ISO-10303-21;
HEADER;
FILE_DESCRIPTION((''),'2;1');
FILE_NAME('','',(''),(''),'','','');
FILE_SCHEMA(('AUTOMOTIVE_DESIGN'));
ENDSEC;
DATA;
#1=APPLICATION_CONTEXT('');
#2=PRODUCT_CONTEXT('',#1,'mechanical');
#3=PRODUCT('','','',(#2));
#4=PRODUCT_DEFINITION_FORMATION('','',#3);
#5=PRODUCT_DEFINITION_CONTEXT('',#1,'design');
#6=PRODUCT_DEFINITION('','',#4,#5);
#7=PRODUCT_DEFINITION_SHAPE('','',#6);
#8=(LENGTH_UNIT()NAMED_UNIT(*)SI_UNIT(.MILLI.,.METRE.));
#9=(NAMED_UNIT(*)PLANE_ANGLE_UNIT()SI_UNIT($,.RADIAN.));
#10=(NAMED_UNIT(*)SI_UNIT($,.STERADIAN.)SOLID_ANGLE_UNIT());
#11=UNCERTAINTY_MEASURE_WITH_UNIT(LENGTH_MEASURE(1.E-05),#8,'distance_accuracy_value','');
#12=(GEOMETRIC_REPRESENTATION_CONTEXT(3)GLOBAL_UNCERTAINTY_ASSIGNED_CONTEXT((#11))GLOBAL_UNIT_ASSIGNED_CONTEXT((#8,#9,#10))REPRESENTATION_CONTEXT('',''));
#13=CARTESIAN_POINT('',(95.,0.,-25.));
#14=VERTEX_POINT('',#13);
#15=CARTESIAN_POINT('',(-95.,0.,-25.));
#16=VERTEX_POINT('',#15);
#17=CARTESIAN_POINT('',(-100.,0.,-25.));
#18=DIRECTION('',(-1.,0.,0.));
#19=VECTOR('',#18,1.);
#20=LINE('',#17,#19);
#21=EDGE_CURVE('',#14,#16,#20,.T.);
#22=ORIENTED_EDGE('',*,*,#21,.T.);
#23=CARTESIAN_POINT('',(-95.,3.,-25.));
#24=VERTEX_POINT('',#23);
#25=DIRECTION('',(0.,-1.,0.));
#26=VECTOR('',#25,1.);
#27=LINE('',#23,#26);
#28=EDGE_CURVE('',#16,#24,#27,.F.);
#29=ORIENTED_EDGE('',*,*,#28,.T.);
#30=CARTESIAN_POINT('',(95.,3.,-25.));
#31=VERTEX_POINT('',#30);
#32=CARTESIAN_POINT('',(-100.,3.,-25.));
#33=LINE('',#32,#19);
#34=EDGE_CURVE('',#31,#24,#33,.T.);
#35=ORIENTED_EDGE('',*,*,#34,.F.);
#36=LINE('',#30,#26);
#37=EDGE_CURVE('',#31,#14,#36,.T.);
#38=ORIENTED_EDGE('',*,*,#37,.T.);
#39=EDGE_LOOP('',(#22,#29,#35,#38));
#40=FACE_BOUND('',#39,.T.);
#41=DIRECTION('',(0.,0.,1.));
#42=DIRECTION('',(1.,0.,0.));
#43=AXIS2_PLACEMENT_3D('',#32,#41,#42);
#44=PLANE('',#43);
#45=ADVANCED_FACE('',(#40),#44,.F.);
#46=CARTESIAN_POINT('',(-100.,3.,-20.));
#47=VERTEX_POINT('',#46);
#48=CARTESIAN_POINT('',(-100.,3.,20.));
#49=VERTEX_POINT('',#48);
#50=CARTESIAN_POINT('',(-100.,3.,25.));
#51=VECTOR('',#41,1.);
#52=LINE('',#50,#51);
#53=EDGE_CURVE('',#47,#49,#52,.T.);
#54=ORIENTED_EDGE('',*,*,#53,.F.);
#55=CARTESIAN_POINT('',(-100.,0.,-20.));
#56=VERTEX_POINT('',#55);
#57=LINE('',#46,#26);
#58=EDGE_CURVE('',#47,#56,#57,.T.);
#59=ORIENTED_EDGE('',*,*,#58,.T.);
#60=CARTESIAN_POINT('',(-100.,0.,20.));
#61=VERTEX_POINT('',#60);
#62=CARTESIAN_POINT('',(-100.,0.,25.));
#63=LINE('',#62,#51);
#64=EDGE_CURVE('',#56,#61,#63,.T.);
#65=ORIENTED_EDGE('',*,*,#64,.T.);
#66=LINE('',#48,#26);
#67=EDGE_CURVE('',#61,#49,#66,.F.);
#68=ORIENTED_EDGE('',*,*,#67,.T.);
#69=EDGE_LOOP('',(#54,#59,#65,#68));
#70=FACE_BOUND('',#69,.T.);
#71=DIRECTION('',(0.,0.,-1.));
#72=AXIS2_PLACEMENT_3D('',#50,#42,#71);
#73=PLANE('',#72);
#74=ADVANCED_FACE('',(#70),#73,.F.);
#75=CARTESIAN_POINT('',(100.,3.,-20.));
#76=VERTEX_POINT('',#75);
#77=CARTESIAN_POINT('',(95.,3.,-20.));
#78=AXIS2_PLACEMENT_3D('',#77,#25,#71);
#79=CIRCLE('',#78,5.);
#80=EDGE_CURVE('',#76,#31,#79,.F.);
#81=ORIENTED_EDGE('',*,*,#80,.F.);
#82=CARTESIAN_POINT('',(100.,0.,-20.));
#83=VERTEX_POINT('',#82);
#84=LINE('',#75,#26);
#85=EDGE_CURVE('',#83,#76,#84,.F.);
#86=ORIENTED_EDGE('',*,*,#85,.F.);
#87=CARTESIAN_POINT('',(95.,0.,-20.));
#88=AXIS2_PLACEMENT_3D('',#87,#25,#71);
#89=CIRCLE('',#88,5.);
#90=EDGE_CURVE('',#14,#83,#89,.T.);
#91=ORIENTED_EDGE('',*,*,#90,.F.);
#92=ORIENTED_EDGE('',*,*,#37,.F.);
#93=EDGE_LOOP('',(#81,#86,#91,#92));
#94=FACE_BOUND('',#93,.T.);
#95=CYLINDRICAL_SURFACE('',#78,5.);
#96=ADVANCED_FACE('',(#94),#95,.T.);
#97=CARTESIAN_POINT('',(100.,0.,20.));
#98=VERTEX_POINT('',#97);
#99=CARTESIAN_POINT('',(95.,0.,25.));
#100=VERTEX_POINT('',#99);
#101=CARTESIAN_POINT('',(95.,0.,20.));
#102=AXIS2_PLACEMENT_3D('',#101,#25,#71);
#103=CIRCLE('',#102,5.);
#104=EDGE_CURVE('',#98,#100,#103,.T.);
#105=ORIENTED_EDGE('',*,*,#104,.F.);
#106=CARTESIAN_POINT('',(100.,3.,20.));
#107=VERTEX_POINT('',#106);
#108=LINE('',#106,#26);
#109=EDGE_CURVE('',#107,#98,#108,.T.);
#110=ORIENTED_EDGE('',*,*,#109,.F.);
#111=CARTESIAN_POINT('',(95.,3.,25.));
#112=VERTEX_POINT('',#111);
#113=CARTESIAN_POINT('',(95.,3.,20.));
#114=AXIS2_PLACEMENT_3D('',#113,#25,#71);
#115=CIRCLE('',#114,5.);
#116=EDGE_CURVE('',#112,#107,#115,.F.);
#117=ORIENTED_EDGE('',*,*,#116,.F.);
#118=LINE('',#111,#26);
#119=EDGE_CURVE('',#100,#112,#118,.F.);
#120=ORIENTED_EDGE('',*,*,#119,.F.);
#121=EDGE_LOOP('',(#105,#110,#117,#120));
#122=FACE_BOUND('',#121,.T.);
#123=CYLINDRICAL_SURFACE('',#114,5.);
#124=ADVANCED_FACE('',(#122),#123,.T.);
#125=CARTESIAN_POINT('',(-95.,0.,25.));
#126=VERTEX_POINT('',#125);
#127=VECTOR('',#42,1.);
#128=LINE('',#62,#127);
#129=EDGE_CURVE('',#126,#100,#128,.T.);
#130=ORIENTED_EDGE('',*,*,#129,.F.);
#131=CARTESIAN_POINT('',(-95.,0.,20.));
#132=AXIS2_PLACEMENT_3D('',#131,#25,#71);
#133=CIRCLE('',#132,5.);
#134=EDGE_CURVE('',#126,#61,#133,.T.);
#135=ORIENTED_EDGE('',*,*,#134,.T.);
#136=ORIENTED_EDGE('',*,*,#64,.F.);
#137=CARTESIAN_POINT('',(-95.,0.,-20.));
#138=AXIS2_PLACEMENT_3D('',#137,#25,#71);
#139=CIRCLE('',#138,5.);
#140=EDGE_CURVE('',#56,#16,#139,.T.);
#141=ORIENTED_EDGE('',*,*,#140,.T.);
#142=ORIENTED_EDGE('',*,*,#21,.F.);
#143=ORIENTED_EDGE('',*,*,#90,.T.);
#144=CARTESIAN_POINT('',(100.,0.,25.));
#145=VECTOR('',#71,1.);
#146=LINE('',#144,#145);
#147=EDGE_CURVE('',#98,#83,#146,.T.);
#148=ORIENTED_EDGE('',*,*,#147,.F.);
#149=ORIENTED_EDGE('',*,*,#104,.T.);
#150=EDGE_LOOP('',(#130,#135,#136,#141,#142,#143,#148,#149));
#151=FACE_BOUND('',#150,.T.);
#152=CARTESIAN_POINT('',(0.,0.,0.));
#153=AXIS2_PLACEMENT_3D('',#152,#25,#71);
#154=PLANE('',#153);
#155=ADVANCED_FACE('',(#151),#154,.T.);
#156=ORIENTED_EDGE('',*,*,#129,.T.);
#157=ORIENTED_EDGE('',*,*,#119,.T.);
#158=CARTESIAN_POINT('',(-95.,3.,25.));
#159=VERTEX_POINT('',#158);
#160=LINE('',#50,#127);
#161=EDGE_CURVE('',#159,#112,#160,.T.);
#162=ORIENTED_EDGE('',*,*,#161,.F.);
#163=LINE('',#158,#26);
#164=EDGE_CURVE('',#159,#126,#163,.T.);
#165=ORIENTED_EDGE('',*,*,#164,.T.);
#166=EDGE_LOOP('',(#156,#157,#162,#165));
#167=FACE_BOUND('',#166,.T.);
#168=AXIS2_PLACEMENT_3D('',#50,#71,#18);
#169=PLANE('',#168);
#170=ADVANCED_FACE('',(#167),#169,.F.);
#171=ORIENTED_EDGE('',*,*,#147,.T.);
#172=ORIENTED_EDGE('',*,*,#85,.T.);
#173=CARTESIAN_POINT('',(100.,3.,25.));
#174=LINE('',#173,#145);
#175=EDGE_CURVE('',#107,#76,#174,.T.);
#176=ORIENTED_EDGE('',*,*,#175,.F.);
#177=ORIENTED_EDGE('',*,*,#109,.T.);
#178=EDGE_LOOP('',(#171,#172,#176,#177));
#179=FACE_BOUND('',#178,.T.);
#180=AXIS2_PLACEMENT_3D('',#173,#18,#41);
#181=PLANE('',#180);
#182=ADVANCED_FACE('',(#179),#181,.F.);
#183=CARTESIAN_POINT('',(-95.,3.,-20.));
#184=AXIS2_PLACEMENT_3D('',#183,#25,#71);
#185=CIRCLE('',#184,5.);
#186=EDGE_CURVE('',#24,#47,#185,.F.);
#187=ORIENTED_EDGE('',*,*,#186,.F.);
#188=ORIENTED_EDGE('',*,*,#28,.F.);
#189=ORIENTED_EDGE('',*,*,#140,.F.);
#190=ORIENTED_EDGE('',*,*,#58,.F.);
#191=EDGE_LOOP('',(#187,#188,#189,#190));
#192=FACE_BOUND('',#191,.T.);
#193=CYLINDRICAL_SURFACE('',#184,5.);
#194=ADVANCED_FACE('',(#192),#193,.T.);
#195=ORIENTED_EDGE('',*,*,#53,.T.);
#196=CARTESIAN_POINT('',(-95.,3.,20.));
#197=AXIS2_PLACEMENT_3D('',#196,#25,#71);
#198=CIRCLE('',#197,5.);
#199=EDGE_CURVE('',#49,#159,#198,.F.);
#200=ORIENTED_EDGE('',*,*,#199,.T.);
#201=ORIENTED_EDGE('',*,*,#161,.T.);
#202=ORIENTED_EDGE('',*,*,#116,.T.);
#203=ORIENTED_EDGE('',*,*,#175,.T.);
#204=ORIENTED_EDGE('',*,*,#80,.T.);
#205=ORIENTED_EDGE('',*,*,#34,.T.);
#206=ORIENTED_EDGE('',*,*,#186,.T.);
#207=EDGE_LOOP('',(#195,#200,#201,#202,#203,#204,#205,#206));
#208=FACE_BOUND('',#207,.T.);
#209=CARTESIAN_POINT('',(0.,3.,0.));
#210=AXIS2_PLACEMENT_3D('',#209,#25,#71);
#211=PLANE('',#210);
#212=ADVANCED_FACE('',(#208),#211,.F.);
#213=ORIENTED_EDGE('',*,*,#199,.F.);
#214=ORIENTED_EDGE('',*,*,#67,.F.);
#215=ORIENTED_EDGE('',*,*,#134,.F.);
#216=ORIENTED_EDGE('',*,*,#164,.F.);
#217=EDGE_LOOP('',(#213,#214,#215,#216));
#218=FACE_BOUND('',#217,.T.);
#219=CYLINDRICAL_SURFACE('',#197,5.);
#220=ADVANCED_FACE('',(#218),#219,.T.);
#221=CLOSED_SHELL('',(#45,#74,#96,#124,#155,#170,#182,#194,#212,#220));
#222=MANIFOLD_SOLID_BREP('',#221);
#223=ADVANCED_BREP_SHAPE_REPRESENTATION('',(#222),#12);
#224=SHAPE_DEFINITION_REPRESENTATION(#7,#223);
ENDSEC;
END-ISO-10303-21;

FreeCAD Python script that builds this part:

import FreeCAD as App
import Part
import Sketcher
from FreeCAD import Vector


def edges_at(feature, points):
    """Names of the edges that pass closest to the given points."""
    edges = feature.Shape.Edges
    near = lambda p: min(range(len(edges)), key=lambda i: edges[i].distToShape(Part.Vertex(*p))[0])
    return sorted({f"Edge{near(p) + 1}" for p in points})

doc = App.newDocument("Part")
params = doc.addObject("Spreadsheet::Sheet", "Params")
for row, (alias, value) in enumerate([
    ("sketch1_width", "200 mm"),
    ("sketch1_height", "50 mm"),
    ("pad1_length", "3 mm"),
    ("fillet_radius", "5 mm"),
], start=1):
    params.set(f"A{row}", alias)
    params.set(f"B{row}", "=" + value)
    params.setAlias(f"B{row}", alias)

body = doc.addObject("PartDesign::Body", "Body")

# Sketch on XZ plane
sketch1 = body.newObject("Sketcher::SketchObject", "Sketch")
sketch1.AttachmentSupport = (doc.getObject("XZ_Plane"), [""])
sketch1.MapMode = "FlatFace"
sketch1.addGeometry([
    Part.LineSegment(Vector(-100, -25, 0), Vector(-100, 25, 0)),
    Part.LineSegment(Vector(-100, 25, 0), Vector(100, 25, 0)),
    Part.LineSegment(Vector(100, 25, 0), Vector(100, -25, 0)),
    Part.LineSegment(Vector(100, -25, 0), Vector(-100, -25, 0)),
], False)
sketch1.addConstraint([
    Sketcher.Constraint("Coincident", 0, 2, 1, 1),
    Sketcher.Constraint("Coincident", 1, 2, 2, 1),
    Sketcher.Constraint("Coincident", 2, 2, 3, 1),
    Sketcher.Constraint("Coincident", 3, 2, 0, 1),
    Sketcher.Constraint("Vertical", 0),
    Sketcher.Constraint("Horizontal", 1),
    Sketcher.Constraint("Vertical", 2),
    Sketcher.Constraint("Horizontal", 3),
    Sketcher.Constraint("Symmetric", 0, 2, 2, 2, -1, 1),
    Sketcher.Constraint("DistanceX", 1, 1, 1, 2, 200.0),
    Sketcher.Constraint("DistanceY", 0, 1, 0, 2, 50.0),
])
sketch1.setExpression("Constraints[9]", "Params.sketch1_width")
sketch1.setExpression("Constraints[10]", "Params.sketch1_height")
pad1 = body.newObject("PartDesign::Pad", "Pad")
pad1.Profile = sketch1
pad1.setExpression("Length", "Params.pad1_length")
pad1.Reversed = True
doc.recompute()

fillet = body.newObject("PartDesign::Fillet", "Fillet")
fillet.Base = (pad1, edges_at(pad1, [
    (100, 1.5, 25),
    (-100, 1.5, 25),
    (-100, 1.5, -25),
    (100, 1.5, -25),
]))
fillet.setExpression("Radius", "Params.fillet_radius")

doc.recompute()
